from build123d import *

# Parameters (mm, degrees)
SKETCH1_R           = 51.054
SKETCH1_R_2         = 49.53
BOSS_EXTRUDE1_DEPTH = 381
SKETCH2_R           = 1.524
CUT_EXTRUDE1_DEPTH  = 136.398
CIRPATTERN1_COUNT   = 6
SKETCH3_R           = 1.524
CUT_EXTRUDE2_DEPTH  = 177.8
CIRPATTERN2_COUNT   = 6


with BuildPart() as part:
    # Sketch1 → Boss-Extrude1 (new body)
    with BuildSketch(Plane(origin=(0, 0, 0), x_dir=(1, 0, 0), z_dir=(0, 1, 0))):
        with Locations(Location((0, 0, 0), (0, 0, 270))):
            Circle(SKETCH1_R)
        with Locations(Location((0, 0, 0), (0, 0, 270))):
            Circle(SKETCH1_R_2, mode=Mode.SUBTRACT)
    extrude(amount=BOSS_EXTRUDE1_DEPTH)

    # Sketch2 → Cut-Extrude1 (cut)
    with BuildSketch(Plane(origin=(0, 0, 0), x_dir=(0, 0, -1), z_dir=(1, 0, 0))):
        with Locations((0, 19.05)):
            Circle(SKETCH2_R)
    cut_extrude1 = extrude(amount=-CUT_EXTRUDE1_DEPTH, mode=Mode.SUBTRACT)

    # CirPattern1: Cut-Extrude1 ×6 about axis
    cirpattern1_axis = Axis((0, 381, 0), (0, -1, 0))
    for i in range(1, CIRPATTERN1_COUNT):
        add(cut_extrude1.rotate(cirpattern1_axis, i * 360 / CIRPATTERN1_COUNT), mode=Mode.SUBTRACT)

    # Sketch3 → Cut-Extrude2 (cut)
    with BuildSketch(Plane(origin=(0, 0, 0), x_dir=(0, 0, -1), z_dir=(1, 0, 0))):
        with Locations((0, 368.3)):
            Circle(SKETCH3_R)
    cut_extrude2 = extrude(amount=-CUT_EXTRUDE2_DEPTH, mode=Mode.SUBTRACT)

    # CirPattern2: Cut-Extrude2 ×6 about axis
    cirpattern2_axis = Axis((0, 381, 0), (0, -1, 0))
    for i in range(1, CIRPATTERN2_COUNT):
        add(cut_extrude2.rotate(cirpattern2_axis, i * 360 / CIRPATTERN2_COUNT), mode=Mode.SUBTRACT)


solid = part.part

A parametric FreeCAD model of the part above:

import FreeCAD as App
import Part
import Sketcher
from FreeCAD import Vector
Q = App.Units.Quantity

doc = App.newDocument("Part")
params = doc.addObject("Spreadsheet::Sheet", "Params")
for row, (alias, value) in enumerate([
    ("sketch1_diameter", "3.9 in"),
    ("sketch1_diameter2", "4.02 in"),
    ("pad1_length", "15 in"),
    ("sketch2_diameter", "0.12 in"),
    ("pocket1_length", "5.37 in"),
    ("sketch3_diameter", "0.12 in"),
    ("pocket2_length", "7 in"),
], start=1):
    params.set(f"A{row}", alias)
    params.set(f"B{row}", "=" + value)
    params.setAlias(f"B{row}", alias)

body = doc.addObject("PartDesign::Body", "Body")

# Sketch on XZ plane
sketch1 = body.newObject("Sketcher::SketchObject", "Sketch")
sketch1.AttachmentSupport = (doc.getObject("XZ_Plane"), [""])
sketch1.MapMode = "FlatFace"
sketch1.addGeometry([
    Part.Circle(Vector(0, 0, 0), Vector(0, 0, 1), 51.054),
    Part.Circle(Vector(0, 0, 0), Vector(0, 0, 1), 49.53),
], False)
sketch1.addConstraint([
    Sketcher.Constraint("Coincident", 0, 3, -1, 1),
    Sketcher.Constraint("Coincident", 1, 3, -1, 1),
    Sketcher.Constraint("Diameter", 1, Q("3.9 in")),
    Sketcher.Constraint("Diameter", 0, Q("4.02 in")),
])
sketch1.setExpression("Constraints[2]", "Params.sketch1_diameter")
sketch1.setExpression("Constraints[3]", "Params.sketch1_diameter2")
pad1 = body.newObject("PartDesign::Pad", "Pad")
pad1.Profile = sketch1
pad1.setExpression("Length", "Params.pad1_length")
pad1.Reversed = True

# Sketch on YZ plane
sketch2 = body.newObject("Sketcher::SketchObject", "Sketch001")
sketch2.AttachmentSupport = (doc.getObject("YZ_Plane"), [""])
sketch2.MapMode = "FlatFace"
sketch2.addGeometry(Part.Circle(Vector(19.05, 0, 0), Vector(0, 0, 1), 1.524), False)
sketch2.addConstraint([
    Sketcher.Constraint("PointOnObject", 0, 3, -1),
    Sketcher.Constraint("Diameter", 0, Q("0.12 in")),
    Sketcher.Constraint("DistanceX", -1, 1, 0, 3, Q("0.75 in")),
])
sketch2.setExpression("Constraints[1]", "Params.sketch2_diameter")
pocket1 = body.newObject("PartDesign::Pocket", "Pocket")
pocket1.Profile = sketch2
pocket1.setExpression("Length", "Params.pocket1_length")
doc.recompute()

polarpattern = body.newObject("PartDesign::PolarPattern", "PolarPattern")
polarpattern.Originals = [pocket1]
polarpattern.Axis = (doc.getObject("Y_Axis"), [""])
polarpattern.Angle = 360
polarpattern.Occurrences = 6
body.Tip = polarpattern

# Sketch on YZ plane
sketch3 = body.newObject("Sketcher::SketchObject", "Sketch002")
sketch3.AttachmentSupport = (doc.getObject("YZ_Plane"), [""])
sketch3.MapMode = "FlatFace"
sketch3.addGeometry(Part.Circle(Vector(368.3, 0, 0), Vector(0, 0, 1), 1.524), False)
sketch3.addConstraint([
    Sketcher.Constraint("PointOnObject", 0, 3, -1),
    Sketcher.Constraint("Diameter", 0, Q("0.12 in")),
    Sketcher.Constraint("DistanceX", -1, 1, 0, 3, Q("14.5 in")),
])
sketch3.setExpression("Constraints[1]", "Params.sketch3_diameter")
pocket2 = body.newObject("PartDesign::Pocket", "Pocket001")
pocket2.Profile = sketch3
pocket2.setExpression("Length", "Params.pocket2_length")
doc.recompute()

polarpattern2 = body.newObject("PartDesign::PolarPattern", "PolarPattern001")
polarpattern2.Originals = [pocket2]
polarpattern2.Axis = (doc.getObject("Y_Axis"), [""])
polarpattern2.Angle = 360
polarpattern2.Occurrences = 6
body.Tip = polarpattern2

doc.recompute()
